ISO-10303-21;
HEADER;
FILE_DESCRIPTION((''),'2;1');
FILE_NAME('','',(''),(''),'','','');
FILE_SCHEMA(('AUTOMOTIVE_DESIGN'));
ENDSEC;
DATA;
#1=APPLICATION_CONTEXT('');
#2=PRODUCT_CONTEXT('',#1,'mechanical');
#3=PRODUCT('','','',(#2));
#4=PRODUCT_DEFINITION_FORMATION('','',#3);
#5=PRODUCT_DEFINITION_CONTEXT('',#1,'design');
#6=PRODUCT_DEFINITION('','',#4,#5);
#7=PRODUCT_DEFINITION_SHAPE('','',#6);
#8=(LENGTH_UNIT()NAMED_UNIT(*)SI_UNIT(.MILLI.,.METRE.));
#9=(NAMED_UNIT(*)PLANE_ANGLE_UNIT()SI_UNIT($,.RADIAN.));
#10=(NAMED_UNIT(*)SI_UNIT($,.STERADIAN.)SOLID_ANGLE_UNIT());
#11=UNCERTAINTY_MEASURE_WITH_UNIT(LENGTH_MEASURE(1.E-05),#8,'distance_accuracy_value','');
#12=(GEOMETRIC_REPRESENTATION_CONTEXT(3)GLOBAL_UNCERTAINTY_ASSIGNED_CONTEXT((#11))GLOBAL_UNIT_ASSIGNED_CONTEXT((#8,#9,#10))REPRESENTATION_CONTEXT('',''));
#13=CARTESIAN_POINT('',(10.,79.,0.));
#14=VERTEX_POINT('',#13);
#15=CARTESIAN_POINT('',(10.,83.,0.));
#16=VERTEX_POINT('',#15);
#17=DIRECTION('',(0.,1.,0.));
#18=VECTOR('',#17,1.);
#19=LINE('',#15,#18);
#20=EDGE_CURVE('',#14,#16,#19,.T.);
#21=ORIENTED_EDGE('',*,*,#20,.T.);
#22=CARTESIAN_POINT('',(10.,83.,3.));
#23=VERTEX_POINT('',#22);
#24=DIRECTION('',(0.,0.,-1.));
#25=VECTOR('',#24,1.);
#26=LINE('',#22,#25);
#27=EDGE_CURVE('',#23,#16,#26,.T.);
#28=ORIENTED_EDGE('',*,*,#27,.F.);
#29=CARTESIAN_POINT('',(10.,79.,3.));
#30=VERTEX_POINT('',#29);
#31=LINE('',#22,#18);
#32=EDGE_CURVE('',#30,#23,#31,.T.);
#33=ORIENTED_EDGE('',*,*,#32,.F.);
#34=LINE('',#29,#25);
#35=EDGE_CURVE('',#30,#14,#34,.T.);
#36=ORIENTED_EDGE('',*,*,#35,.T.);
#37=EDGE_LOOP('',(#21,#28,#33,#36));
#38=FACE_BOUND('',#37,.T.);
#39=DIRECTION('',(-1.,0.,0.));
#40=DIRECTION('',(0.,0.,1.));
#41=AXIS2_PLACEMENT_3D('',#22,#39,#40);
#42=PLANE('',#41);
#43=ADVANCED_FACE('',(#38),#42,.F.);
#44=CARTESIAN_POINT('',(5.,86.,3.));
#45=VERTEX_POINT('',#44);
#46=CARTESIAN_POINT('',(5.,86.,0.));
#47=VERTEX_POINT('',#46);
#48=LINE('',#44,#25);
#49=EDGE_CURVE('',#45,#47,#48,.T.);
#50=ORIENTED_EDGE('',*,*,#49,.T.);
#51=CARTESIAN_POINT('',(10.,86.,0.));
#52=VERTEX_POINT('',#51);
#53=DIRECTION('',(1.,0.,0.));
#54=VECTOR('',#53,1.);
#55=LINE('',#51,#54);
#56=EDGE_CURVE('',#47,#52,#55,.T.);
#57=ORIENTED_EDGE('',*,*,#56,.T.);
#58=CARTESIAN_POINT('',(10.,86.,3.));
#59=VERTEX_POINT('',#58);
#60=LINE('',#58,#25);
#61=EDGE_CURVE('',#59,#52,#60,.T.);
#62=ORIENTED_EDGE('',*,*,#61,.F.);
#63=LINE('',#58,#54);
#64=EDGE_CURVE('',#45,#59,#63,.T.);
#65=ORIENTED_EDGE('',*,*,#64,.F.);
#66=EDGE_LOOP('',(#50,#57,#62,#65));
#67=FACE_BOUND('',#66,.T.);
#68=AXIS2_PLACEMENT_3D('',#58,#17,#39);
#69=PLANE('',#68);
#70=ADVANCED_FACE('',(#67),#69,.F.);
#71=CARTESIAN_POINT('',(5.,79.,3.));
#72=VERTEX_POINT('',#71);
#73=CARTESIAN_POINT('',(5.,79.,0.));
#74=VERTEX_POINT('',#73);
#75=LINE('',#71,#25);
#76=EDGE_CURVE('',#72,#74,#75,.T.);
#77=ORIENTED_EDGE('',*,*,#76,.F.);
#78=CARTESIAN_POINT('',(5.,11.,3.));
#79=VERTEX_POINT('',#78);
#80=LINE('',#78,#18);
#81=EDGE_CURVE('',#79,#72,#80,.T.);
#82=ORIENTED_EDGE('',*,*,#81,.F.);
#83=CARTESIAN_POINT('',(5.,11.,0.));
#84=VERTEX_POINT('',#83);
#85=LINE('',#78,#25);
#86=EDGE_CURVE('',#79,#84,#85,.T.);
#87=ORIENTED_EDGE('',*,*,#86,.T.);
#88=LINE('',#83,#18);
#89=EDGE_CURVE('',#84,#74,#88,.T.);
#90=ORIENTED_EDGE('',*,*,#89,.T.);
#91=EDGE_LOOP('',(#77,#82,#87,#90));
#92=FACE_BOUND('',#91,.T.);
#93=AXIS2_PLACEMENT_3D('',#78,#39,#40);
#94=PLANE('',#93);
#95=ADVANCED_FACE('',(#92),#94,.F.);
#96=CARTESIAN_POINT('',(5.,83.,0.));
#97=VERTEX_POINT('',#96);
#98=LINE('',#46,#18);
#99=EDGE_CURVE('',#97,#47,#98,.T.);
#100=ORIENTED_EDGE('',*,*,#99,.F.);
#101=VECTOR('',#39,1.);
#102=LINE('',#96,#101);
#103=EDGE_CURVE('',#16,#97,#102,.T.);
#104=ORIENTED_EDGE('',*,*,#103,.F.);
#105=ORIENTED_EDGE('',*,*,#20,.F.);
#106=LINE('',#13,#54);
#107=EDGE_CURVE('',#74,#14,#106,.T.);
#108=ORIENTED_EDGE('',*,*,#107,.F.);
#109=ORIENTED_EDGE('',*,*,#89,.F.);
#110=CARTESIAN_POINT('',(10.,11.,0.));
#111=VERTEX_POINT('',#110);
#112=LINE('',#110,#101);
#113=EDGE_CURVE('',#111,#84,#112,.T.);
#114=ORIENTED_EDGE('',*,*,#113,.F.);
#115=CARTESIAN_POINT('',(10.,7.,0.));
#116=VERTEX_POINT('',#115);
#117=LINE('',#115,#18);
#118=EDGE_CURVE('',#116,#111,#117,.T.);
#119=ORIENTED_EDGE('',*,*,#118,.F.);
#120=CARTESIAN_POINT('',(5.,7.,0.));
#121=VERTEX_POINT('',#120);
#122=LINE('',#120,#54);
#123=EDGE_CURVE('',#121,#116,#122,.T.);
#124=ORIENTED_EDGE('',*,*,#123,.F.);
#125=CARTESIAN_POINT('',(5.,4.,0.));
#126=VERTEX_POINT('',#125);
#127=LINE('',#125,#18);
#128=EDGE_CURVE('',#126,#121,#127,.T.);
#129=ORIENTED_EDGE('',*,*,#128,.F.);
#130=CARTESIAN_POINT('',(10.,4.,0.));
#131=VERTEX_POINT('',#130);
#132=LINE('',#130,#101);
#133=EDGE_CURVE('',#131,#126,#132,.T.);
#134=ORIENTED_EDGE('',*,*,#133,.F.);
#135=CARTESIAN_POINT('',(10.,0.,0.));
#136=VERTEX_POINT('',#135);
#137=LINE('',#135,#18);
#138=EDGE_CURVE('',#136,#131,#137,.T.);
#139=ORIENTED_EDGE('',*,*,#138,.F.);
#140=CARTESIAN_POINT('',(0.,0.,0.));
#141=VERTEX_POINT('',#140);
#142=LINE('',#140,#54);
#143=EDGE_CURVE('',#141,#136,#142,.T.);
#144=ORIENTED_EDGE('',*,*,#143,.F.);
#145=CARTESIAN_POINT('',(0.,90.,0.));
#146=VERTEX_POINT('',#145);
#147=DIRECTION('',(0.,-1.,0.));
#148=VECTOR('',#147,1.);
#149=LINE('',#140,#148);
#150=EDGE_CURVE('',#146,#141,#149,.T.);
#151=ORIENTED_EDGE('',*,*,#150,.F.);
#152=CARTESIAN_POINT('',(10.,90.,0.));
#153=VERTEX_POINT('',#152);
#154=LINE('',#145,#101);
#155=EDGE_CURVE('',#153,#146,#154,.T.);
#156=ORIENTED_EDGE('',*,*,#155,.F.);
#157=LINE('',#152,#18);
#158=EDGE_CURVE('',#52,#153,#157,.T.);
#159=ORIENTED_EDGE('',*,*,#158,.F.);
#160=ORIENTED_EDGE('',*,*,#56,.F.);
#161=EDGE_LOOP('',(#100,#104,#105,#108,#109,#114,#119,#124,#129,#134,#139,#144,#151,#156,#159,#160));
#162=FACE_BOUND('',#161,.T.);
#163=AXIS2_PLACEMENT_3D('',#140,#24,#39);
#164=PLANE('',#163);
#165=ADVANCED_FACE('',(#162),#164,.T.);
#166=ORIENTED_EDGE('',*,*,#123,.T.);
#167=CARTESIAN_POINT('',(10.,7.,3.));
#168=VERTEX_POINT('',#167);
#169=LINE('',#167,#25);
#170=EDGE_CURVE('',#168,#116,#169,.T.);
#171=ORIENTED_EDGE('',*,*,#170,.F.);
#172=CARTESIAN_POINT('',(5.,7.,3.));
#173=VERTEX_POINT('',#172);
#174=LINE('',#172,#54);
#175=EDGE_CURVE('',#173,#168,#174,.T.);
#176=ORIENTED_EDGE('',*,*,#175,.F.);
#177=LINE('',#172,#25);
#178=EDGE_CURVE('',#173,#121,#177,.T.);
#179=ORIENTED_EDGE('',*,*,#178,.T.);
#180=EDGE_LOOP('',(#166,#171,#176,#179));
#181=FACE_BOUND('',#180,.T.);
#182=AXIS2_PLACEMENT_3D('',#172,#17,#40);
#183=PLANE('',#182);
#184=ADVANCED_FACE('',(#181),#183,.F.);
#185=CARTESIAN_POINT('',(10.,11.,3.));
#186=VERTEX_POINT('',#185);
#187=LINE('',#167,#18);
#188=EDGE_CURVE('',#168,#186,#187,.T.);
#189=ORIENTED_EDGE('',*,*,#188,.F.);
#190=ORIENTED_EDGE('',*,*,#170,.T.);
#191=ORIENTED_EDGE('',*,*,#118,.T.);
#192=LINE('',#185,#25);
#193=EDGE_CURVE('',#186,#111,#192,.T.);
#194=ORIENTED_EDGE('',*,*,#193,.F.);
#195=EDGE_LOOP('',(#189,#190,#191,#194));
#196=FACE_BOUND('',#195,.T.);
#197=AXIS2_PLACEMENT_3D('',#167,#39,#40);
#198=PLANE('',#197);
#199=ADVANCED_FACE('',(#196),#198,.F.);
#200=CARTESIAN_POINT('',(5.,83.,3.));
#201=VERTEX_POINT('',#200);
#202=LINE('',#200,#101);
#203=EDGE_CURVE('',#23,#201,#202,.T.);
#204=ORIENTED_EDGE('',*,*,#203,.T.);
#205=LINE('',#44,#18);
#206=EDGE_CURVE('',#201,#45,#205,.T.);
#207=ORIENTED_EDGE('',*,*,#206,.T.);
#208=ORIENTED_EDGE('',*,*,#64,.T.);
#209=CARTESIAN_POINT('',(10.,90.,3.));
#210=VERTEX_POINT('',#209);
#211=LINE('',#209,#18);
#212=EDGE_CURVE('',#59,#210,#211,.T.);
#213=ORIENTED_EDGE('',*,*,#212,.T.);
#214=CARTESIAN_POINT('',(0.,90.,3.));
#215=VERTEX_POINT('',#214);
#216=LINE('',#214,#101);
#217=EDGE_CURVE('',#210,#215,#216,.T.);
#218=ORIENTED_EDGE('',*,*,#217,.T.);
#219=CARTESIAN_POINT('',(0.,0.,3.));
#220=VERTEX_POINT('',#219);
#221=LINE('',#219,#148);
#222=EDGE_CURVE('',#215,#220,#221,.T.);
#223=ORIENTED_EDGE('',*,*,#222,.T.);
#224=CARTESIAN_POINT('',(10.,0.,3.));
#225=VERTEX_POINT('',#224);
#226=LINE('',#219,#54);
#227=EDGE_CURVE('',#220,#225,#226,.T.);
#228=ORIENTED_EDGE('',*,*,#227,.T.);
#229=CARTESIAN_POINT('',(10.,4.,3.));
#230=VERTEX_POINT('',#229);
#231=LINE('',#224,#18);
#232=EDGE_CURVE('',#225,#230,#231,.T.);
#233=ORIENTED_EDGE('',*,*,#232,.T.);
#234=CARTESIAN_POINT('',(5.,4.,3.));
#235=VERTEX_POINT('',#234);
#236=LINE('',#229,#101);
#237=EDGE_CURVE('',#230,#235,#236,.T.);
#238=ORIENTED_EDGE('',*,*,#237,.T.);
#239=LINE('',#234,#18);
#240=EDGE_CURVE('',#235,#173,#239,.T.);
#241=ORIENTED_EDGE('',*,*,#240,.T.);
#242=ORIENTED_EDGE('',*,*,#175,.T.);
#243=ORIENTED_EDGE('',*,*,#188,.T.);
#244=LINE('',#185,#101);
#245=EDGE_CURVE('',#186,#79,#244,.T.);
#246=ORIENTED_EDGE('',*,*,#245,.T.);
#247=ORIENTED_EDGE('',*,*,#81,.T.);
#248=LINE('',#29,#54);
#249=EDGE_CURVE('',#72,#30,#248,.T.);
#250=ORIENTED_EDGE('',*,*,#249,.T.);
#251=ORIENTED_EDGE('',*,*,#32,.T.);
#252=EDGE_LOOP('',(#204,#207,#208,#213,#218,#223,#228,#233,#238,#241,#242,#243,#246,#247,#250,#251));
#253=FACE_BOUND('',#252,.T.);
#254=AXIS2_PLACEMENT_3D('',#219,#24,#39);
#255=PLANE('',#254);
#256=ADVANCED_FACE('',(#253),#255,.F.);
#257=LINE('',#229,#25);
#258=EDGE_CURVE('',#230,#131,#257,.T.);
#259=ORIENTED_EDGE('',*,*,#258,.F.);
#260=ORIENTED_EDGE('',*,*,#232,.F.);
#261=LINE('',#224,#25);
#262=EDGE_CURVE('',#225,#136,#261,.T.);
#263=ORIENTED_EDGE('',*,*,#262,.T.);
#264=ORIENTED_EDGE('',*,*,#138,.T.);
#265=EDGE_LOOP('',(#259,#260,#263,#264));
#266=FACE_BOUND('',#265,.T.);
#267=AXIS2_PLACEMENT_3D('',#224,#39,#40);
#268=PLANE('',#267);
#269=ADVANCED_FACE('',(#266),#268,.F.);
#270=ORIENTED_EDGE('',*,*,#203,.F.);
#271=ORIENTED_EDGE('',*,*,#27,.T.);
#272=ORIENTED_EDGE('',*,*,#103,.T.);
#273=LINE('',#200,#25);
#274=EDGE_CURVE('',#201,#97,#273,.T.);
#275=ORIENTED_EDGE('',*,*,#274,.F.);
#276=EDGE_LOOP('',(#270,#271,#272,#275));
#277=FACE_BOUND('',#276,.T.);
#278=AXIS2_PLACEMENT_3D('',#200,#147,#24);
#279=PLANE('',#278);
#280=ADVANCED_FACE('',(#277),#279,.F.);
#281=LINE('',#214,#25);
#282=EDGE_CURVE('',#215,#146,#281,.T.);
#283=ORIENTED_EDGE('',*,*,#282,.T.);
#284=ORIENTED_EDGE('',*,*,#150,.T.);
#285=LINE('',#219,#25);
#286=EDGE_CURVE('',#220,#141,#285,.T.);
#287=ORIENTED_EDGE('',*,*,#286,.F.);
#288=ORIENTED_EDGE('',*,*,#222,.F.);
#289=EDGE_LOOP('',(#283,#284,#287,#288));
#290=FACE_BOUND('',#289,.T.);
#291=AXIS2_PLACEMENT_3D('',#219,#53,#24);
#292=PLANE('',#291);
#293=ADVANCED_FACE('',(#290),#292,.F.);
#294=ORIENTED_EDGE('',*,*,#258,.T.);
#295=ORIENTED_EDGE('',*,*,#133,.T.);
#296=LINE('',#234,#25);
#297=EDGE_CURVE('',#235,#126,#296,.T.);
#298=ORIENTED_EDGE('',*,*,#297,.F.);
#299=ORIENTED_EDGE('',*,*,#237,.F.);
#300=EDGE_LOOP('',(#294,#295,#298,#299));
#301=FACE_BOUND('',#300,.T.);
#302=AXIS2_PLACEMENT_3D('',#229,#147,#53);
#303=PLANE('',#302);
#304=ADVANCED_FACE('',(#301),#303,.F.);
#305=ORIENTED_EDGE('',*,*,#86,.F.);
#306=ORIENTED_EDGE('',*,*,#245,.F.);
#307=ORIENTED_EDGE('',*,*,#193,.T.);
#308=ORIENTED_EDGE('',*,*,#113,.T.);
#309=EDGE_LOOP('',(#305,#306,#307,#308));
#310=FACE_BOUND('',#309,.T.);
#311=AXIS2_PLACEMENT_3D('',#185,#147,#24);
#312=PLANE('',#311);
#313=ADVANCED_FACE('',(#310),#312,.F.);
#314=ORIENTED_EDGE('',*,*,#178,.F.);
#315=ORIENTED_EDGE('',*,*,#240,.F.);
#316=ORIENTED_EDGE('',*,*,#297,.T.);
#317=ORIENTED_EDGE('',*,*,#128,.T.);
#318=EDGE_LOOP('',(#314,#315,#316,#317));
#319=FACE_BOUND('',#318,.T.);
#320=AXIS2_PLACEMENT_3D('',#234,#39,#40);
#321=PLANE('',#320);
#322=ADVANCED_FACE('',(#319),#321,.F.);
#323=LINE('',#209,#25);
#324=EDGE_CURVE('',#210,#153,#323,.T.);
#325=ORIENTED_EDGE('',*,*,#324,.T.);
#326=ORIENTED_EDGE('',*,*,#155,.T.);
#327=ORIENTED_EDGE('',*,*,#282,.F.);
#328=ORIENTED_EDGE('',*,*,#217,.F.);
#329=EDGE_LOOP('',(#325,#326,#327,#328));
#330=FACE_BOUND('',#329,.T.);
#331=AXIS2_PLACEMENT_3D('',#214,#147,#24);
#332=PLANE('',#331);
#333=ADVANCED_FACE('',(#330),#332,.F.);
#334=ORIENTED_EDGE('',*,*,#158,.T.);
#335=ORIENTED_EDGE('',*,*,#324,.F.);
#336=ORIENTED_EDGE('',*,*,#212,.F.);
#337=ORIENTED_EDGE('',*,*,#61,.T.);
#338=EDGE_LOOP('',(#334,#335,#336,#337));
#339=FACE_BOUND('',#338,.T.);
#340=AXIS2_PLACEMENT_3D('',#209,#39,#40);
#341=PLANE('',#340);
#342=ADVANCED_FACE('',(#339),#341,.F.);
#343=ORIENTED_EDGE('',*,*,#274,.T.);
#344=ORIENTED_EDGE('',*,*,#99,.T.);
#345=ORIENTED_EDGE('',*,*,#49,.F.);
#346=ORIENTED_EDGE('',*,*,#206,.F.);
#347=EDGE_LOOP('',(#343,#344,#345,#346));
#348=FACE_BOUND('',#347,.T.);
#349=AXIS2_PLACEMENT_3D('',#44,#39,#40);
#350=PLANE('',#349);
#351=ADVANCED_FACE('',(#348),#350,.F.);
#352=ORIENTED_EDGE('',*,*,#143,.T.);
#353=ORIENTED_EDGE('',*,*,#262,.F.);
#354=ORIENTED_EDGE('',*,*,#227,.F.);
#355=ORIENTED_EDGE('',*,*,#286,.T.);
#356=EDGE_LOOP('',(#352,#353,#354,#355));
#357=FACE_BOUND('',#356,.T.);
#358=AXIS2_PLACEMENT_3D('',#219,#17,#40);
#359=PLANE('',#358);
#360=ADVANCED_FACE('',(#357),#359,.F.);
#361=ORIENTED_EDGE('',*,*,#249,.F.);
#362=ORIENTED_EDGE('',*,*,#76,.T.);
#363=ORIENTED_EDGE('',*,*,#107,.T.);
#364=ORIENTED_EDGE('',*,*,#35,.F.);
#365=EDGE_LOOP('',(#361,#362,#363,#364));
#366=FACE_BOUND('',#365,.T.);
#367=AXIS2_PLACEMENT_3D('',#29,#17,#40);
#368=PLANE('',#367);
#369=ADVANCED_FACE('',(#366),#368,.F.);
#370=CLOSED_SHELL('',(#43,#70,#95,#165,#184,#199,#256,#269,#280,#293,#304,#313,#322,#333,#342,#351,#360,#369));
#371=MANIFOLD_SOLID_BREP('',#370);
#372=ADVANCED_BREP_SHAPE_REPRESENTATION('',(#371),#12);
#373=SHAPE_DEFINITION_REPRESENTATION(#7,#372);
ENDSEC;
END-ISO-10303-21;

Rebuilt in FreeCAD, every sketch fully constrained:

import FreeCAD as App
import Part
import Sketcher

V = App.Vector
Q = App.Units.Quantity


def add_polygon(sketch, points):
    """Adds a closed chain of lines whose ends are joined by coincident constraints."""
    first, n = sketch.GeometryCount, len(points)
    for a, b in zip(points, points[1:] + points[:1]):
        sketch.addGeometry(Part.LineSegment(App.Vector(*a, 0), App.Vector(*b, 0)), False)
    for i in range(n):
        sketch.addConstraint(Sketcher.Constraint("Coincident", first + i, 2, first + (i + 1) % n, 1))

doc = App.newDocument("Part")
body = doc.addObject("PartDesign::Body", "Body")

# Sketch on XY plane
sketch1 = body.newObject("Sketcher::SketchObject", "Sketch")
sketch1.AttachmentSupport = (doc.getObject("XY_Plane"), [""])
sketch1.MapMode = "FlatFace"
add_polygon(sketch1, [(0, 0), (10, 0), (10, 4), (5, 4), (5, 7), (10, 7), (10, 11), (5, 11), (5, 79), (10, 79), (10, 83), (5, 83), (5, 86), (10, 86), (10, 90), (0, 90)])  # lines 0-15
sketch1.addConstraint([
    Sketcher.Constraint("Horizontal", 0),
    Sketcher.Constraint("Vertical", 1),
    Sketcher.Constraint("Horizontal", 2),
    Sketcher.Constraint("Vertical", 3),
    Sketcher.Constraint("Horizontal", 4),
    Sketcher.Constraint("Vertical", 5),
    Sketcher.Constraint("Horizontal", 6),
    Sketcher.Constraint("Vertical", 7),
    Sketcher.Constraint("Horizontal", 8),
    Sketcher.Constraint("Vertical", 9),
    Sketcher.Constraint("Horizontal", 10),
    Sketcher.Constraint("Vertical", 11),
    Sketcher.Constraint("Horizontal", 12),
    Sketcher.Constraint("Vertical", 13),
    Sketcher.Constraint("Horizontal", 14),
    Sketcher.Constraint("Vertical", 15),
    Sketcher.Constraint("Coincident", 15, 2, -1, 1),
    Sketcher.Constraint("Vertical", 1, 2, 4, 2),
    Sketcher.Constraint("Vertical", 3, 2, 6, 2),
    Sketcher.Constraint("Vertical", 5, 2, 8, 2),
    Sketcher.Constraint("Vertical", 7, 2, 10, 2),
    Sketcher.Constraint("Vertical", 9, 2, 12, 2),
    Sketcher.Constraint("Equal", 1, 5),
    Sketcher.Constraint("Equal", 5, 9),
    Sketcher.Constraint("Equal", 3, 11),
    Sketcher.Constraint("Equal", 9, 13),
    Sketcher.Constraint("DistanceX", 0, 1, 0, 2, Q("10 mm")),
    Sketcher.Constraint("DistanceX", 2, 2, 2, 1, Q("5 mm")),
    Sketcher.Constraint("DistanceY", 1, 1, 1, 2, Q("4 mm")),
    Sketcher.Constraint("DistanceY", 3, 1, 3, 2, Q("3 mm")),
    Sketcher.Constraint("DistanceY", 7, 1, 7, 2, Q("68 mm")),
])
pad1 = body.newObject("PartDesign::Pad", "Pad")
pad1.Profile = sketch1
pad1.Length = 3

doc.recompute()
